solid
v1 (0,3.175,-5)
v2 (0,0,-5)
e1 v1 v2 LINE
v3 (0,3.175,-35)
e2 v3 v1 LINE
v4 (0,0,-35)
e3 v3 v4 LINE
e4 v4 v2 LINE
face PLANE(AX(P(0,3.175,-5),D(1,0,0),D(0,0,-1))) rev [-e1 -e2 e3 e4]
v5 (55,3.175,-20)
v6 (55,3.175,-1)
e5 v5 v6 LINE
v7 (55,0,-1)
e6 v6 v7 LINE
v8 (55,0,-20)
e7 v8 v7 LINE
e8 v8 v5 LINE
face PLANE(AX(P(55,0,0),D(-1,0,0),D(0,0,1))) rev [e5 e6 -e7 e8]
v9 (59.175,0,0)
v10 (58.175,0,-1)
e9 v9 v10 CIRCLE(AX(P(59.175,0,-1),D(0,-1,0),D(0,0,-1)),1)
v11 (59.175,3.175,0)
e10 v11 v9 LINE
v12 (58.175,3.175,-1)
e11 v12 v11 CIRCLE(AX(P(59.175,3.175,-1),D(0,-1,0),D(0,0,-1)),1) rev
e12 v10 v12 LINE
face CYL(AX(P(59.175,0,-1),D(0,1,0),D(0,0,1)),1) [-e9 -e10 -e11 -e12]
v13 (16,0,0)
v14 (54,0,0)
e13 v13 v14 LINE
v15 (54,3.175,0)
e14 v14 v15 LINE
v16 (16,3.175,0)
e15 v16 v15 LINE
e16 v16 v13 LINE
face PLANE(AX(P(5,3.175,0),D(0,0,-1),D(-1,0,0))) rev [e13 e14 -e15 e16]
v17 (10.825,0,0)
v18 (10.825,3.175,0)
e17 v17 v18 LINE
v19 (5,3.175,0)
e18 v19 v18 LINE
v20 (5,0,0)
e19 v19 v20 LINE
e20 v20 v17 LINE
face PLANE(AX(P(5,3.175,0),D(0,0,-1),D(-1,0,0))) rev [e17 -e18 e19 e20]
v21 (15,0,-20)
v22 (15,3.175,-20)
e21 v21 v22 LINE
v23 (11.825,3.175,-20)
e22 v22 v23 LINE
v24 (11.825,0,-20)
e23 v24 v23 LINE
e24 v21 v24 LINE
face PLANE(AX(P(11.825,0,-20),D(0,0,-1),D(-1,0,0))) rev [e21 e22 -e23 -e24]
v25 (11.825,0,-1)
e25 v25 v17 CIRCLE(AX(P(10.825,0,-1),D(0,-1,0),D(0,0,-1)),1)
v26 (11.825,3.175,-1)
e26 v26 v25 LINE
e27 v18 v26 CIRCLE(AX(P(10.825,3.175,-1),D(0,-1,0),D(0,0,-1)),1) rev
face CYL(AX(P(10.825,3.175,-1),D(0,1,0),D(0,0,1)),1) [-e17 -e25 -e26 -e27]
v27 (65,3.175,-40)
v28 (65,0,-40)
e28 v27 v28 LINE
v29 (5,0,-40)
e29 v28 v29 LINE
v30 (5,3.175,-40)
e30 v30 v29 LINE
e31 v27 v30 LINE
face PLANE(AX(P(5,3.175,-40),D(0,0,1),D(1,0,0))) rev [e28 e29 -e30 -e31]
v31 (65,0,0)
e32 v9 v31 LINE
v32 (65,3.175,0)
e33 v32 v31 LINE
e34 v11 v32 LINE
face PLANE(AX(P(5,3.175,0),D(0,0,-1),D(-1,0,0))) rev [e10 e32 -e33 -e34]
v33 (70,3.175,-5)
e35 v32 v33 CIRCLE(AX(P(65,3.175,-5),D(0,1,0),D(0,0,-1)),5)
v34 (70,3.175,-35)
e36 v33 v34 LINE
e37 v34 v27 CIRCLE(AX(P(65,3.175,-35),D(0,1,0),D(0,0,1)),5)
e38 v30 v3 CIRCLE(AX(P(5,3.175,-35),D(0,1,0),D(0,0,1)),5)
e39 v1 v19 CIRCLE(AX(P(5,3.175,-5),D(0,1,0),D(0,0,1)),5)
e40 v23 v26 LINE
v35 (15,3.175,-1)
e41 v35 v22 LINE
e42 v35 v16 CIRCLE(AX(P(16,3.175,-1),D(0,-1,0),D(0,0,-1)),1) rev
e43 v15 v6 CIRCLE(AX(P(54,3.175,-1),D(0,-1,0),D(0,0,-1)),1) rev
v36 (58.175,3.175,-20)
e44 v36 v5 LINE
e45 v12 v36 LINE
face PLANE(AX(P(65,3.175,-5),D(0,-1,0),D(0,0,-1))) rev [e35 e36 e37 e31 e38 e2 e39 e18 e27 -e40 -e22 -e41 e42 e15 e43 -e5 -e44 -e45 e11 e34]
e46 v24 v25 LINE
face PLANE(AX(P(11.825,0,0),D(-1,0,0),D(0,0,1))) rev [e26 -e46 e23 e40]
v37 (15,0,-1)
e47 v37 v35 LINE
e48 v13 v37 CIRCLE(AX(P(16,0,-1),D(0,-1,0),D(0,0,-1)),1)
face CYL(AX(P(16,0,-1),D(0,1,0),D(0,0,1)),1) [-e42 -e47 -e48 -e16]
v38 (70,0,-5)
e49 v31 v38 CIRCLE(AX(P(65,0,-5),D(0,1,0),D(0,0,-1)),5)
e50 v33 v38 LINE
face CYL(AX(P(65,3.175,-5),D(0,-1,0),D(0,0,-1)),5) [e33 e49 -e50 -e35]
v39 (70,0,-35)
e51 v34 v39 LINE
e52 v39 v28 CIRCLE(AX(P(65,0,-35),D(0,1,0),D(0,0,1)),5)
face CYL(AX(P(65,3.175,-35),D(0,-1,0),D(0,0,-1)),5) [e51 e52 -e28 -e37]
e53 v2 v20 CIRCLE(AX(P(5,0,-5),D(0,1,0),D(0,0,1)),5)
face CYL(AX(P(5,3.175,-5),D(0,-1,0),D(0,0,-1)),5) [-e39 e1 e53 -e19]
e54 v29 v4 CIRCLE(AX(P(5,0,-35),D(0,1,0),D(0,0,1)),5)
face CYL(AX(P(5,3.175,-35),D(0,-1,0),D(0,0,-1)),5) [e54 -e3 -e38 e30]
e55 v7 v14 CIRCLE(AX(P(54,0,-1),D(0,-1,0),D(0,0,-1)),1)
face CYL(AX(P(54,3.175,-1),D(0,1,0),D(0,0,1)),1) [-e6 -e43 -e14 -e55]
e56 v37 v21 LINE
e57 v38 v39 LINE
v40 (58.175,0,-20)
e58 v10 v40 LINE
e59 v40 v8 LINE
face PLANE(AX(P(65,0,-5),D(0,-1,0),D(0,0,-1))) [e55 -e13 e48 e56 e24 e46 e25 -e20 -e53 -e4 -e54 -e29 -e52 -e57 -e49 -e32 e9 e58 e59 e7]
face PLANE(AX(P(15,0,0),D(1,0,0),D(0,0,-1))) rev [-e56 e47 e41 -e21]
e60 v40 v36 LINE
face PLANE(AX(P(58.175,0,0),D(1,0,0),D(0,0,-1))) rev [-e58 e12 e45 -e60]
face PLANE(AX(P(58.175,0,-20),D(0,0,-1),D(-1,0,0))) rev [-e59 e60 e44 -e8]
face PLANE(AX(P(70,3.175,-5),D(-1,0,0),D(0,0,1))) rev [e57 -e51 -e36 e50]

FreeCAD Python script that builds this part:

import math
import FreeCAD as App
import Part
import Sketcher


def edges_at(feature, points):
    """Names of the edges that pass closest to the given points."""
    edges = feature.Shape.Edges
    near = lambda p: min(range(len(edges)), key=lambda i: edges[i].distToShape(Part.Vertex(*p))[0])
    return sorted({f"Edge{near(p) + 1}" for p in points})


def add_polygon(sketch, points):
    """Adds a closed chain of lines whose ends are joined by coincident constraints."""
    first, n = sketch.GeometryCount, len(points)
    for a, b in zip(points, points[1:] + points[:1]):
        sketch.addGeometry(Part.LineSegment(App.Vector(*a, 0), App.Vector(*b, 0)), False)
    for i in range(n):
        sketch.addConstraint(Sketcher.Constraint("Coincident", first + i, 2, first + (i + 1) % n, 1))

doc = App.newDocument("Part")
body = doc.addObject("PartDesign::Body", "Body")

sketch1 = body.newObject("Sketcher::SketchObject", "Sketch")
sketch1.AttachmentSupport = (doc.getObject("XZ_Plane"), [""])
sketch1.MapMode = "FlatFace"
sketch1.addGeometry(Part.LineSegment(App.Vector(5, 0, 0), App.Vector(65, 0, 0)), False)
sketch1.addGeometry(Part.ArcOfCircle(Part.Circle(App.Vector(65, -5, 0), App.Vector(0, 0, 1), 5), math.radians(0), math.radians(90)), False)
sketch1.addGeometry(Part.LineSegment(App.Vector(70, -5, 0), App.Vector(70, -35, 0)), False)
sketch1.addGeometry(Part.ArcOfCircle(Part.Circle(App.Vector(65, -35, 0), App.Vector(0, 0, 1), 5), math.radians(-90), math.radians(0)), False)
sketch1.addGeometry(Part.LineSegment(App.Vector(65, -40, 0), App.Vector(5, -40, 0)), False)
sketch1.addGeometry(Part.ArcOfCircle(Part.Circle(App.Vector(5, -35, 0), App.Vector(0, 0, 1), 5), math.radians(180), math.radians(270)), False)
sketch1.addGeometry(Part.LineSegment(App.Vector(0, -35, 0), App.Vector(0, -5, 0)), False)
sketch1.addGeometry(Part.ArcOfCircle(Part.Circle(App.Vector(5, -5, 0), App.Vector(0, 0, 1), 5), math.radians(90), math.radians(180)), False)
sketch1.addConstraint(Sketcher.Constraint("Tangent", 0, 2, 1, 2))
sketch1.addConstraint(Sketcher.Constraint("Tangent", 1, 1, 2, 1))
sketch1.addConstraint(Sketcher.Constraint("Tangent", 2, 2, 3, 2))
sketch1.addConstraint(Sketcher.Constraint("Tangent", 3, 1, 4, 1))
sketch1.addConstraint(Sketcher.Constraint("Tangent", 4, 2, 5, 2))
sketch1.addConstraint(Sketcher.Constraint("Tangent", 5, 1, 6, 1))
sketch1.addConstraint(Sketcher.Constraint("Tangent", 6, 2, 7, 2))
sketch1.addConstraint(Sketcher.Constraint("Tangent", 7, 1, 0, 1))
sketch1.addConstraint(Sketcher.Constraint("Horizontal", 0))
sketch1.addConstraint(Sketcher.Constraint("Vertical", 2))
sketch1.addConstraint(Sketcher.Constraint("Horizontal", 4))
sketch1.addConstraint(Sketcher.Constraint("Vertical", 6))
sketch1.addConstraint(Sketcher.Constraint("Equal", 1, 3))
sketch1.addConstraint(Sketcher.Constraint("Equal", 3, 5))
sketch1.addConstraint(Sketcher.Constraint("Equal", 5, 7))
sketch1.addConstraint(Sketcher.Constraint("PointOnObject", 0, 2, -1))
sketch1.addConstraint(Sketcher.Constraint("PointOnObject", 5, 1, -2))
sketch1.addConstraint(Sketcher.Constraint("Radius", 1, 5.0))
sketch1.addConstraint(Sketcher.Constraint("DistanceX", 0, 1, 0, 2, 60.0))
sketch1.addConstraint(Sketcher.Constraint("DistanceY", 2, 2, 2, 1, 30.0))
pad1 = body.newObject("PartDesign::Pad", "Pad")
pad1.Profile = sketch1
pad1.Length = 3.175
pad1.Reversed = True

sketch2 = body.newObject("Sketcher::SketchObject", "Sketch001")
sketch2.AttachmentSupport = (doc.getObject("XZ_Plane"), [""])
sketch2.MapMode = "FlatFace"
sketch2.AttachmentOffset = App.Placement(App.Vector(0, 0, -3.175), App.Rotation())
add_polygon(sketch2, [(11.8, -20), (11.8, 0), (15, 0), (15, -20)])
add_polygon(sketch2, [(55, -20), (55, 0), (58.2, 0), (58.2, -20)])
sketch2.addConstraint(Sketcher.Constraint("Vertical", 0))
sketch2.addConstraint(Sketcher.Constraint("Horizontal", 1))
sketch2.addConstraint(Sketcher.Constraint("Vertical", 2))
sketch2.addConstraint(Sketcher.Constraint("Horizontal", 3))
sketch2.addConstraint(Sketcher.Constraint("Vertical", 4))
sketch2.addConstraint(Sketcher.Constraint("Horizontal", 5))
sketch2.addConstraint(Sketcher.Constraint("Vertical", 6))
sketch2.addConstraint(Sketcher.Constraint("Horizontal", 7))
sketch2.addConstraint(Sketcher.Constraint("PointOnObject", 0, 2, -1))
sketch2.addConstraint(Sketcher.Constraint("PointOnObject", 4, 2, -1))
sketch2.addConstraint(Sketcher.Constraint("Horizontal", 3, 2, 6, 2))
sketch2.addConstraint(Sketcher.Constraint("Equal", 3, 5))
sketch2.addConstraint(Sketcher.Constraint("DistanceY", 0, 1, 0, 2, 20.0))
sketch2.addConstraint(Sketcher.Constraint("DistanceX", -1, 1, 1, 2, 15.0))
sketch2.addConstraint(Sketcher.Constraint("DistanceX", -1, 1, 4, 2, 55.0))
sketch2.addConstraint(Sketcher.Constraint("DistanceX", 1, 1, 1, 2, 3.175))
pocket1 = body.newObject("PartDesign::Pocket", "Pocket")
pocket1.Profile = sketch2
pocket1.Type = "ThroughAll"
pocket1.Reversed = True
doc.recompute()

fillet = body.newObject("PartDesign::Fillet", "Fillet")
fillet.Base = (pocket1, edges_at(pocket1, [
    (15, 1.587, 0),
    (58.175, 1.587, 0),
    (55, 1.587, 0),
    (11.825, 1.587, 0),
]))
fillet.Radius = 1

doc.recompute()
